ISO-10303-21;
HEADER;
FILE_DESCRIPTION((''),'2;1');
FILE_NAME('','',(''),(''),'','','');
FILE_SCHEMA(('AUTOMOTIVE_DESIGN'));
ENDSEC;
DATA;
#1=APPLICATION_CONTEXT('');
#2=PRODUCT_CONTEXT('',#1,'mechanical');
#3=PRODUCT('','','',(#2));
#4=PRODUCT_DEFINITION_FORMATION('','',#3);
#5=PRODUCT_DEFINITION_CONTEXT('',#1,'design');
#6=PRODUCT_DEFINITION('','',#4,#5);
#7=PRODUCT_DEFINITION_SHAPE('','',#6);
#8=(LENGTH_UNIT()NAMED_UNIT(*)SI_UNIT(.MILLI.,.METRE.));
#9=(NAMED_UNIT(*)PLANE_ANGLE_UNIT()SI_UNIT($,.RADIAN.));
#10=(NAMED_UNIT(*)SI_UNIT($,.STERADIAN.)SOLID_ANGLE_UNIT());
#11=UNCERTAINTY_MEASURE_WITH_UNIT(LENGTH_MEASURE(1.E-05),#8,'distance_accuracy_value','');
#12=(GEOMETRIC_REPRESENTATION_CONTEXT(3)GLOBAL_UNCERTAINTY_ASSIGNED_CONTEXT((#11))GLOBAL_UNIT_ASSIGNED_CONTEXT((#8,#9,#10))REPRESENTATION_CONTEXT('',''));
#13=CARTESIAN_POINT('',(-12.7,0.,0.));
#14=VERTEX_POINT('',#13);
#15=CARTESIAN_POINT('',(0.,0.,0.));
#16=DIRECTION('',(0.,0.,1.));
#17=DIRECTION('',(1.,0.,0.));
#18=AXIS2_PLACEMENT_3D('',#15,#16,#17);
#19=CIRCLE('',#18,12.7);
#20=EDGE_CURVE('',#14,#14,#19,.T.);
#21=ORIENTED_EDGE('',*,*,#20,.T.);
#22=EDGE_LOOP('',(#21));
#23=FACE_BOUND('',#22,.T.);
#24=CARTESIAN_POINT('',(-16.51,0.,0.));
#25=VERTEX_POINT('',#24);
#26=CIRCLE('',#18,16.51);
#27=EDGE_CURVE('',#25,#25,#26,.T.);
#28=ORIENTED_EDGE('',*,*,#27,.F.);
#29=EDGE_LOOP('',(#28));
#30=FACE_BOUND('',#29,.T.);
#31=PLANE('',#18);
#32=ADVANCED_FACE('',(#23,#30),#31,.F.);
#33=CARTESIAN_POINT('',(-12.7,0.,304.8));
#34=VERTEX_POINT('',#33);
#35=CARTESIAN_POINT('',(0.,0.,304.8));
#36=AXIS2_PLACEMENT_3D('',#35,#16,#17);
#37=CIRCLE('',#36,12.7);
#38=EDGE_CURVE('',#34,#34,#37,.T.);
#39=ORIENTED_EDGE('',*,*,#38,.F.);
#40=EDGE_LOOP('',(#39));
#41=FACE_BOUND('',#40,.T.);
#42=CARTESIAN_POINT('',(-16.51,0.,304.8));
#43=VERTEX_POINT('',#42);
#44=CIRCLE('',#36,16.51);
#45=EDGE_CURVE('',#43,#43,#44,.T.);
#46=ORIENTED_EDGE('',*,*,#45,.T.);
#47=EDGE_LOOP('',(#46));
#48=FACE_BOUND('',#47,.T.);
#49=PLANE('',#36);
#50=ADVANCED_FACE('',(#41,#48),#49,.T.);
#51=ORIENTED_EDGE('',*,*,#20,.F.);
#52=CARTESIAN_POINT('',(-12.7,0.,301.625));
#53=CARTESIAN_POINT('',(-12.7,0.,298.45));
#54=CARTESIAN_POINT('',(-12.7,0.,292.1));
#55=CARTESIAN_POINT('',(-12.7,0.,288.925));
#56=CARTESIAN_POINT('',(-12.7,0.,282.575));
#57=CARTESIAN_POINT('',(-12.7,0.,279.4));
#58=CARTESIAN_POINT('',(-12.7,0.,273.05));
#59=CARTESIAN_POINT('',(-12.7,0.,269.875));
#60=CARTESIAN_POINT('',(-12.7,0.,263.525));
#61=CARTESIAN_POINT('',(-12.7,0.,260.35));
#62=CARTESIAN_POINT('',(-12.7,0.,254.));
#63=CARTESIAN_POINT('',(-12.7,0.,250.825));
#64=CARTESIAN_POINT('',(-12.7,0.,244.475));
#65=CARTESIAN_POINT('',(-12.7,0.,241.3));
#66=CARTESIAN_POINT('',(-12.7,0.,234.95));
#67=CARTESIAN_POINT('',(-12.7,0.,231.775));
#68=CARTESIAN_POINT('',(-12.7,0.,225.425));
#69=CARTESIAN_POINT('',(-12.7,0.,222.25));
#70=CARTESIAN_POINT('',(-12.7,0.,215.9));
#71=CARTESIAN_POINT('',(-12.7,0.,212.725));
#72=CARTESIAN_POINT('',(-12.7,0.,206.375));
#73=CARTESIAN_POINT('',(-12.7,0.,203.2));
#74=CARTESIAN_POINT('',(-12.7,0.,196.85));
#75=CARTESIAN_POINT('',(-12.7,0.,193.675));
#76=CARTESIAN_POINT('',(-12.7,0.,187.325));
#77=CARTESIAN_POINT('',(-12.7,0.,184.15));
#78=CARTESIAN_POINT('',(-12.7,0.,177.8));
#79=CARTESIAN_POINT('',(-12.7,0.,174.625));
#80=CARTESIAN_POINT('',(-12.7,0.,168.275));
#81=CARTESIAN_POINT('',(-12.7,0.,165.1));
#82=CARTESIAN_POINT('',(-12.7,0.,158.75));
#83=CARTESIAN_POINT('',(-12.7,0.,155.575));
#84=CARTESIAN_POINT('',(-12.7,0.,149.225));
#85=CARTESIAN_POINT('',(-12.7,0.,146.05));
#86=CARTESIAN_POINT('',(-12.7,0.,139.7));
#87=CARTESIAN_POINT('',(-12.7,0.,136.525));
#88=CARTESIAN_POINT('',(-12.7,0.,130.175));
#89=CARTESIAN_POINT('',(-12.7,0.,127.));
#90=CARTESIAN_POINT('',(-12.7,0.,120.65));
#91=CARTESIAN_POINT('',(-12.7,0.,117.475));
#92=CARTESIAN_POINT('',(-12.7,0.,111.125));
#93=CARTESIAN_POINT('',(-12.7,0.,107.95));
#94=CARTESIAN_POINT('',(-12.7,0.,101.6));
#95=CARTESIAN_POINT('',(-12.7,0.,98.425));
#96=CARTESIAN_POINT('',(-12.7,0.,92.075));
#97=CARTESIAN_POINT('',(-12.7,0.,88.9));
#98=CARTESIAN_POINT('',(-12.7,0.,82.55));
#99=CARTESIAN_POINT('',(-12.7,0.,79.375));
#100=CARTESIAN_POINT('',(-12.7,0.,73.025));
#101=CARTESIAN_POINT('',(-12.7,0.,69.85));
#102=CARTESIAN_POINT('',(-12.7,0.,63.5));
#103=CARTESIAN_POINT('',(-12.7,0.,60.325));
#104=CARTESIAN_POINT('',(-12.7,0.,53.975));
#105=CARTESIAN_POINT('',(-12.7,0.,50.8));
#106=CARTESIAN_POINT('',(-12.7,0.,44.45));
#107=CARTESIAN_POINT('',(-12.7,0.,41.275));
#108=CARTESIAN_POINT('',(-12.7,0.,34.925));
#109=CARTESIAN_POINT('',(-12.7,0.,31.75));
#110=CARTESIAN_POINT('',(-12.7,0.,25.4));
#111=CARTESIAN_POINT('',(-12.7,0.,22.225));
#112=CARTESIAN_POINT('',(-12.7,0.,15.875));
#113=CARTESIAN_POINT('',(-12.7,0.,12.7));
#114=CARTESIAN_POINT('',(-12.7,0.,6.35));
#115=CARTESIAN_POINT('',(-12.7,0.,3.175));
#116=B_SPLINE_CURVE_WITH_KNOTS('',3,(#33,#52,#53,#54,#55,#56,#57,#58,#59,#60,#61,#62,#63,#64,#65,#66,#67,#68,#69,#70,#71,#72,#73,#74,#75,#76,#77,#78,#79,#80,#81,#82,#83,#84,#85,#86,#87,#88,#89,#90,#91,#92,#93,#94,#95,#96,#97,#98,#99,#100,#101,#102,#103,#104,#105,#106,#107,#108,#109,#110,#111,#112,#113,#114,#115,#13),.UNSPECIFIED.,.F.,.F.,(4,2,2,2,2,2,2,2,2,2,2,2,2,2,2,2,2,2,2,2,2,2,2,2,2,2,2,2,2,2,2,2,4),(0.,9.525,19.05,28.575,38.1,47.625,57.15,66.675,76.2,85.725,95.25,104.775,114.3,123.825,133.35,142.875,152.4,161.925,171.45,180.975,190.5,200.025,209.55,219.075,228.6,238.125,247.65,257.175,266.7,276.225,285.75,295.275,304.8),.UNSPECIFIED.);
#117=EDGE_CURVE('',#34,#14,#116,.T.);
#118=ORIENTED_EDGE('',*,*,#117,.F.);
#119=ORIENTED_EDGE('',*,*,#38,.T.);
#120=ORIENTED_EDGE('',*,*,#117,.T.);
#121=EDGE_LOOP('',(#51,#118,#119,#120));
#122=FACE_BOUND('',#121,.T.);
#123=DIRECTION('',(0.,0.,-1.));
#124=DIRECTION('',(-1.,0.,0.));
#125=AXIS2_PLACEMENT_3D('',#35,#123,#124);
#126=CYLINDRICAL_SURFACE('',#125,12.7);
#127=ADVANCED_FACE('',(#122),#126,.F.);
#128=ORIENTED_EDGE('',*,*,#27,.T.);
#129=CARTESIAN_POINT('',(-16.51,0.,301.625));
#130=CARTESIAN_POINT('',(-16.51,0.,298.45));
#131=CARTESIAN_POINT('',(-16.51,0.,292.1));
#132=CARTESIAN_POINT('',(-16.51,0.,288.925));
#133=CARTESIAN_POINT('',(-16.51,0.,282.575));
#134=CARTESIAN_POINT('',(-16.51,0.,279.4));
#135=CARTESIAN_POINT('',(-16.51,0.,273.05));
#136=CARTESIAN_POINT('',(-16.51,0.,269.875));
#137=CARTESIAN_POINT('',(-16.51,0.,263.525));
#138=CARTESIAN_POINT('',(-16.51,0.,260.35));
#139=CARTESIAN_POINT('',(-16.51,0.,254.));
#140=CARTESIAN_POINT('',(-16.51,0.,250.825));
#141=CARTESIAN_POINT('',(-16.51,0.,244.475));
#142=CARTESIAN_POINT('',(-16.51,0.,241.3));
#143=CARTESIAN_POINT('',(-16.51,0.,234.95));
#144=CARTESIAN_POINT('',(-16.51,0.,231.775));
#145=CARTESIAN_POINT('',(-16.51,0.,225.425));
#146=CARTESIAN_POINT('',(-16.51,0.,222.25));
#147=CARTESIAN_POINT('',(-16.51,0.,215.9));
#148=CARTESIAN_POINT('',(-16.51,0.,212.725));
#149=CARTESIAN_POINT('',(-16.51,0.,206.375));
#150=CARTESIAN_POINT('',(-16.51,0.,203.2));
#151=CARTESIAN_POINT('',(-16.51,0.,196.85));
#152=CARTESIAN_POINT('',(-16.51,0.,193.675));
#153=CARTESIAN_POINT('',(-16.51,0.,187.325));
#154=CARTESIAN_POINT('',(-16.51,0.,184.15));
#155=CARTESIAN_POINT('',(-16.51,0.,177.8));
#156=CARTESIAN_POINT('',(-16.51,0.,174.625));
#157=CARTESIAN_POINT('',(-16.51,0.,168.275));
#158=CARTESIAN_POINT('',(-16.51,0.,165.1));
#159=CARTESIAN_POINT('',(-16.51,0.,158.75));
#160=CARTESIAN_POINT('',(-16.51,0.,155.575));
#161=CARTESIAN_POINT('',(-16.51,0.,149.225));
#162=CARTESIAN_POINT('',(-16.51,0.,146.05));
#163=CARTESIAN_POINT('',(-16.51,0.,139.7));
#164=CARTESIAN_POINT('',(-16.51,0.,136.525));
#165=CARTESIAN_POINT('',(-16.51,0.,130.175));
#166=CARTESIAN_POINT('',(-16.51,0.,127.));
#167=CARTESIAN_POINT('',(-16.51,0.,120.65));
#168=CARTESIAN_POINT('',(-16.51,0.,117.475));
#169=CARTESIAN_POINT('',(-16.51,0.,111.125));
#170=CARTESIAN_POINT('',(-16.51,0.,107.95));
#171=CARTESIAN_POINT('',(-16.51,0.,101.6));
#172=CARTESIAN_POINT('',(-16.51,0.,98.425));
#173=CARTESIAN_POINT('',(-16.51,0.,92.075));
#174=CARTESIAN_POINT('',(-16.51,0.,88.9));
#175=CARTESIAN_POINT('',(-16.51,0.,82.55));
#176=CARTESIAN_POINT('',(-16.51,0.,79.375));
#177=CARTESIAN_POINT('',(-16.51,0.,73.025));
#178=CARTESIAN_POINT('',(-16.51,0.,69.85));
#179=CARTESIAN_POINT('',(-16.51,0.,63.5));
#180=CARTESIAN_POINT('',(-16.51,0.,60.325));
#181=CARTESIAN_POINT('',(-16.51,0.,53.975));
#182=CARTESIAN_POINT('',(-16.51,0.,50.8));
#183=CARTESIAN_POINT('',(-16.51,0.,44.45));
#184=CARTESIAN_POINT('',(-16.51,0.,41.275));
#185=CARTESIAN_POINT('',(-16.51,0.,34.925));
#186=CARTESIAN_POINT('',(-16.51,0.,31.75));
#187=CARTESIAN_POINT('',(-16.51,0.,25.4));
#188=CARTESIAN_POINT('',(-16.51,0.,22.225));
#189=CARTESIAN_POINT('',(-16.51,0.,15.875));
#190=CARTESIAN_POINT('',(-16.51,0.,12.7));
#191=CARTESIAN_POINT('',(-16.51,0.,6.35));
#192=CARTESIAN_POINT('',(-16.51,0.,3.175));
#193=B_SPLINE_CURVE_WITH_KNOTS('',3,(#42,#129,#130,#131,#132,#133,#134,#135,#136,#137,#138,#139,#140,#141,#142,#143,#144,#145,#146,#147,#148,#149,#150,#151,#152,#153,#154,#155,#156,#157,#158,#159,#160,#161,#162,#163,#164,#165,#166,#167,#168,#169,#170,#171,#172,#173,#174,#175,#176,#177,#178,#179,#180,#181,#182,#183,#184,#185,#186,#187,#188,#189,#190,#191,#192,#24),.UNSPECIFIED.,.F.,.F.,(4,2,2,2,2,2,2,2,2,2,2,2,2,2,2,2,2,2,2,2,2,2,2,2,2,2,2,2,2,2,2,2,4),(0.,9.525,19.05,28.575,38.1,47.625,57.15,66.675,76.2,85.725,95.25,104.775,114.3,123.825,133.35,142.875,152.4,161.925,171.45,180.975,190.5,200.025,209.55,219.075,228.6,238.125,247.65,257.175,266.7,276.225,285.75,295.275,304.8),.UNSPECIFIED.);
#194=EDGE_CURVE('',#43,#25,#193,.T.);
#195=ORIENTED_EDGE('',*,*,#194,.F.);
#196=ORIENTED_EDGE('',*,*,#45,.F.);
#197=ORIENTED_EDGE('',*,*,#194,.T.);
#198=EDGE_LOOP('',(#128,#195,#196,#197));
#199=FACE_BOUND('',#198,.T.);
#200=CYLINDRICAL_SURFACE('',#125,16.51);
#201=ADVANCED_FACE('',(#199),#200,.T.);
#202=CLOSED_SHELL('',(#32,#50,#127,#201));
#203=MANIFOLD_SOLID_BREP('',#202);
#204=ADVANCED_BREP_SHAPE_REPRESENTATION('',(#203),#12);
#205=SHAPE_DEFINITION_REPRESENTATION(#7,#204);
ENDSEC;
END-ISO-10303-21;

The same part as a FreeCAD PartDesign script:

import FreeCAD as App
import Part
import Sketcher

V = App.Vector
Q = App.Units.Quantity

doc = App.newDocument("Part")
params = doc.addObject("Spreadsheet::Sheet", "Params")
for row, (alias, value) in enumerate([
    ("sketch1_diameter", "1 in"),
    ("sketch1_diameter2", "1.3 in"),
    ("pad1_length", "12 in"),
], start=1):
    params.set(f"A{row}", alias)
    params.set(f"B{row}", "=" + value)
    params.setAlias(f"B{row}", alias)

body = doc.addObject("PartDesign::Body", "Body")

sketch1 = body.newObject("Sketcher::SketchObject", "Sketch")
sketch1.AttachmentSupport = (doc.getObject("XY_Plane"), [""])
sketch1.MapMode = "FlatFace"
sketch1.addGeometry([
    Part.Circle(V(0, 0, 0), V(0, 0, 1), 16.51),
    Part.Circle(V(0, 0, 0), V(0, 0, 1), 12.7),
], False)
sketch1.addConstraint([
    Sketcher.Constraint("Coincident", 0, 3, -1, 1),
    Sketcher.Constraint("Coincident", 1, 3, -1, 1),
    Sketcher.Constraint("Diameter", 1, Q("1 in")),
    Sketcher.Constraint("Diameter", 0, Q("1.3 in")),
])
sketch1.setExpression("Constraints[2]", "Params.sketch1_diameter")
sketch1.setExpression("Constraints[3]", "Params.sketch1_diameter2")
pad1 = body.newObject("PartDesign::Pad", "Pad")
pad1.Profile = sketch1
pad1.setExpression("Length", "Params.pad1_length")

doc.recompute()
